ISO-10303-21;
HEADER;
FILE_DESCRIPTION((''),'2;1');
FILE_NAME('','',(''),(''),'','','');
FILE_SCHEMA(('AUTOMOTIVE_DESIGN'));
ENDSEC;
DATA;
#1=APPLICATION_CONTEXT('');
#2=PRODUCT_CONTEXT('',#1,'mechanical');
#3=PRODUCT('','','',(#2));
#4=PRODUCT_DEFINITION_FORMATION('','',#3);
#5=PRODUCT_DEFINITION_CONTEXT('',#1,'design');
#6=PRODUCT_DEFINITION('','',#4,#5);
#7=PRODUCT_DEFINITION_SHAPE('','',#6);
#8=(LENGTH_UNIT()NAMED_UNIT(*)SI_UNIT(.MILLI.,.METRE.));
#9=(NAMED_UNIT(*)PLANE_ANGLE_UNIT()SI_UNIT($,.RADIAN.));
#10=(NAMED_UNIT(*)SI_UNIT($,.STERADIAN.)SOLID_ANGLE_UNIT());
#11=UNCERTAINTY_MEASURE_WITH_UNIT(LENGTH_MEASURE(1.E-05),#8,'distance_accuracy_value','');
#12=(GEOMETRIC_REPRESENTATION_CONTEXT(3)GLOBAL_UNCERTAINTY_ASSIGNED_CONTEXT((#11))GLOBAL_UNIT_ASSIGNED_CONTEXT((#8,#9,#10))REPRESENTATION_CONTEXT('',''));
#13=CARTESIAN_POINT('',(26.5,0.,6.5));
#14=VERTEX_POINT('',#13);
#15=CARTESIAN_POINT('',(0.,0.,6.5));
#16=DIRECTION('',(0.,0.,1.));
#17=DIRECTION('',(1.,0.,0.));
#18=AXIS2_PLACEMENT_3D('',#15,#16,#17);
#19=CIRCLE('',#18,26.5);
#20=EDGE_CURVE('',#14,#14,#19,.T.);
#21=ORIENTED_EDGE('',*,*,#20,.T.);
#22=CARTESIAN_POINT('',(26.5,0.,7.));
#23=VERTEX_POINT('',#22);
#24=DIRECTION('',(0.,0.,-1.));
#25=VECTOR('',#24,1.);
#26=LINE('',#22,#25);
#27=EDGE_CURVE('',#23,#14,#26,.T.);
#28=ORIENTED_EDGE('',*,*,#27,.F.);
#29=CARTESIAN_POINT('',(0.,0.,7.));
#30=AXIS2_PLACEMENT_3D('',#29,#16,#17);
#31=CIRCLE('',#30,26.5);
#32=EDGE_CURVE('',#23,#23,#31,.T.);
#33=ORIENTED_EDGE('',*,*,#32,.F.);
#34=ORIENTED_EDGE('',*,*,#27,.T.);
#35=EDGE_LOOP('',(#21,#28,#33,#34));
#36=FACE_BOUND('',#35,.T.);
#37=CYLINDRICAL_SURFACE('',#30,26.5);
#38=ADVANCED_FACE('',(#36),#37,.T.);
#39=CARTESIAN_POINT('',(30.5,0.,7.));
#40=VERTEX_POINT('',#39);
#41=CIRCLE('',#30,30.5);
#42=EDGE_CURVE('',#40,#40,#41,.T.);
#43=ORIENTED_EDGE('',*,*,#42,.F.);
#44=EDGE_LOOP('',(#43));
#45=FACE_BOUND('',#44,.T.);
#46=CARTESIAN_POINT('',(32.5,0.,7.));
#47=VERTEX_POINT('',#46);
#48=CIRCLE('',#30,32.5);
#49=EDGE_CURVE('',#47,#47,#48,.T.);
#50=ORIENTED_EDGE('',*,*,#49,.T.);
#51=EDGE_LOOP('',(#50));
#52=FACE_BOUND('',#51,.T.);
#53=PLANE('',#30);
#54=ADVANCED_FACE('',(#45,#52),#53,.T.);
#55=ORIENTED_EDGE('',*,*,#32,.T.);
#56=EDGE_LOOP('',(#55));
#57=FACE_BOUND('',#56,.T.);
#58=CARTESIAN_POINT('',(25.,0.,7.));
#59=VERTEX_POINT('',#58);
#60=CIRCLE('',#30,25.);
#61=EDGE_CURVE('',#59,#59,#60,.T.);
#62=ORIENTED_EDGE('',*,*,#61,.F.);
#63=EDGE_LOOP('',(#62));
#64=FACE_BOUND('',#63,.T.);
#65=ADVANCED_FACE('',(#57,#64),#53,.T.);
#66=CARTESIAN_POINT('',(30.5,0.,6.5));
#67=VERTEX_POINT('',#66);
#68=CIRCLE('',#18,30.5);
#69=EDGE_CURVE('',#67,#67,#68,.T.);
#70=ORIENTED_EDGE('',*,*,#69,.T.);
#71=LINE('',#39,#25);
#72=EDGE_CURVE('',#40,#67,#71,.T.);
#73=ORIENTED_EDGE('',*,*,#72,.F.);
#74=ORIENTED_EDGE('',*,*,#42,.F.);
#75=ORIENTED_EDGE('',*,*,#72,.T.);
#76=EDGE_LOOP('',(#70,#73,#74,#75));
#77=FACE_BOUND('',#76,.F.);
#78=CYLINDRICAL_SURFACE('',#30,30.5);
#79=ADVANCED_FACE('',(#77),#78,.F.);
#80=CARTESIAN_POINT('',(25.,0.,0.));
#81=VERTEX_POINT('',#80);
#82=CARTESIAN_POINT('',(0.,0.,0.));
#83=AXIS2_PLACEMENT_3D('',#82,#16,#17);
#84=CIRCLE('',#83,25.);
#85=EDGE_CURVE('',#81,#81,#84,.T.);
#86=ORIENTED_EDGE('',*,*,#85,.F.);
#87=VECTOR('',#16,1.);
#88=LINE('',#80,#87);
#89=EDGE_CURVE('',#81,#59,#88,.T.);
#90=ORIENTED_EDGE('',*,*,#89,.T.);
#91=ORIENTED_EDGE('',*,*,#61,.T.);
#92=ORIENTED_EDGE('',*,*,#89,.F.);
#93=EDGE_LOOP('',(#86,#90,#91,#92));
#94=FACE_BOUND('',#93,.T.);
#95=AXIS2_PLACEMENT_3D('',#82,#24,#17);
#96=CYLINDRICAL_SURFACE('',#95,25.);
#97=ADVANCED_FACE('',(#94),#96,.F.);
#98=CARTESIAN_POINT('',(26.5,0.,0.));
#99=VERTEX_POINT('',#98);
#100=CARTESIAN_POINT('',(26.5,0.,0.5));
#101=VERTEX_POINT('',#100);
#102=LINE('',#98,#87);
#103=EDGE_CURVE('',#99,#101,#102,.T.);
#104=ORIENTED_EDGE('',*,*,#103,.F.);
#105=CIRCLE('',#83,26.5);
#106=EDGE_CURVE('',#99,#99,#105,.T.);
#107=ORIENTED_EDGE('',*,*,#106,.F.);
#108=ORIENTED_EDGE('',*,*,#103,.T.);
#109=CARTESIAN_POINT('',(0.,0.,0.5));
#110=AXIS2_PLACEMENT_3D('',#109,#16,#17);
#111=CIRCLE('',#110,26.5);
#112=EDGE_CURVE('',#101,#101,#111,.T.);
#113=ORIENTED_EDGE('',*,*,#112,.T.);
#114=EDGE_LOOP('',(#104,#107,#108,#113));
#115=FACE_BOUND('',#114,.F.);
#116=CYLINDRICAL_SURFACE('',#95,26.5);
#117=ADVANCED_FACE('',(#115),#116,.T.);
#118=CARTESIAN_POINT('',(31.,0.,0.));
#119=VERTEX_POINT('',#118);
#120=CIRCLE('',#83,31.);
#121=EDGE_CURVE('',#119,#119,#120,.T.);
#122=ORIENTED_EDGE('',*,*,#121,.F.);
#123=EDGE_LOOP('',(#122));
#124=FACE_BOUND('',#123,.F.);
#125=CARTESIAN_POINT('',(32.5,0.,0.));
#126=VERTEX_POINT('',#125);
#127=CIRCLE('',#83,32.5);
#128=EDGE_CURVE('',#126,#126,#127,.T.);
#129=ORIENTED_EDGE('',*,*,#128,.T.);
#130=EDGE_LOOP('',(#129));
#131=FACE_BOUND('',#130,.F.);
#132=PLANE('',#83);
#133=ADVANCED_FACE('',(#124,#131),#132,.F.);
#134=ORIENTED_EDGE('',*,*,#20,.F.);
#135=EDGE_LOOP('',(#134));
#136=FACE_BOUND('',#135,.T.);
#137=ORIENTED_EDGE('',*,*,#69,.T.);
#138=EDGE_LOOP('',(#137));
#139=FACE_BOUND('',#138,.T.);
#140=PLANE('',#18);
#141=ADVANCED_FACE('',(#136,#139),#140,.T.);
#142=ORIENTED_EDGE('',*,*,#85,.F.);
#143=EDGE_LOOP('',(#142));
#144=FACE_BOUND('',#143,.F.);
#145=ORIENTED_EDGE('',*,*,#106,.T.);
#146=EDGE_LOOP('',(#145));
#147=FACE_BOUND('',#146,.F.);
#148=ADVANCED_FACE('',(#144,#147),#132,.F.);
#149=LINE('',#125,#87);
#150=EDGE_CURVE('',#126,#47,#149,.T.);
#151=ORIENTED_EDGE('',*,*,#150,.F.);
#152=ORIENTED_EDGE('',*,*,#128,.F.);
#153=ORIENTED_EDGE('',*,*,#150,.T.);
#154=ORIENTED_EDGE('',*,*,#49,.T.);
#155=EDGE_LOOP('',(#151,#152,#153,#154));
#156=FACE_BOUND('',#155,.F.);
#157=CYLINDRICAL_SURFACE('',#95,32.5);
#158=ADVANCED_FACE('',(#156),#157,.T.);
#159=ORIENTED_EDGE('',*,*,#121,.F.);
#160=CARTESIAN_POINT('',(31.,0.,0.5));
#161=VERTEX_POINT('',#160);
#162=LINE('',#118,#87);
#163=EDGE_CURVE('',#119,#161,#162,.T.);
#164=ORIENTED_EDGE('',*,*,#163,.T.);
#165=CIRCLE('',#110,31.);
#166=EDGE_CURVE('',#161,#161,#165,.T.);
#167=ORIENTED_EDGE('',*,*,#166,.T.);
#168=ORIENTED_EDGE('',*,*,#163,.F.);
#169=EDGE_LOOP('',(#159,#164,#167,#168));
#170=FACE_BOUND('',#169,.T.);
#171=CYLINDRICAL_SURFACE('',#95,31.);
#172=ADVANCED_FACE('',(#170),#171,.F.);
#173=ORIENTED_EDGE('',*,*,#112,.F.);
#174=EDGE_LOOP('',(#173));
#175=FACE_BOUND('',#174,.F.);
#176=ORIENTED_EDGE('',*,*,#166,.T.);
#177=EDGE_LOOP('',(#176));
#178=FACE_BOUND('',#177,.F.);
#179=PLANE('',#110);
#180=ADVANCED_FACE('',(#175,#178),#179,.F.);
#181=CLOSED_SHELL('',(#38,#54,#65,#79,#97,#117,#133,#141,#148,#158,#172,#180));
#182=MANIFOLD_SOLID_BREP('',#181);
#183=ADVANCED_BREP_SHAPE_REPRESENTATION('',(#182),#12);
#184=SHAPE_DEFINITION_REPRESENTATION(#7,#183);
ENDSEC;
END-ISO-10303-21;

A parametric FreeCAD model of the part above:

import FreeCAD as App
import Part
import Sketcher

doc = App.newDocument("Part")
body = doc.addObject("PartDesign::Body", "Body")

sketch1 = body.newObject("Sketcher::SketchObject", "Sketch")
sketch1.AttachmentSupport = (doc.getObject("XY_Plane"), [""])
sketch1.MapMode = "FlatFace"
sketch1.addGeometry([
    Part.Circle(App.Vector(0, 0, 0), App.Vector(0, 0, 1), 32),
    Part.Circle(App.Vector(0, 0, 0), App.Vector(0, 0, 1), 25),
], False)
sketch1.addConstraint([
    Sketcher.Constraint("Coincident", 0, 3, -1, 1),
    Sketcher.Constraint("Coincident", 1, 3, -1, 1),
    Sketcher.Constraint("Diameter", 0, 65.0),
    Sketcher.Constraint("Diameter", 1, 50.0),
])
pad1 = body.newObject("PartDesign::Pad", "Pad")
pad1.Profile = sketch1
pad1.Length = 7

sketch2 = body.newObject("Sketcher::SketchObject", "Sketch001")
sketch2.AttachmentSupport = (doc.getObject("XY_Plane"), [""])
sketch2.MapMode = "FlatFace"
sketch2.AttachmentOffset = App.Placement(App.Vector(0, 0, 7), App.Rotation())
sketch2.addGeometry([
    Part.Circle(App.Vector(0, 0, 0), App.Vector(0, 0, 1), 30),
    Part.Circle(App.Vector(0, 0, 0), App.Vector(0, 0, 1), 26),
], False)
sketch2.addConstraint([
    Sketcher.Constraint("Coincident", 0, 3, -1, 1),
    Sketcher.Constraint("Coincident", 1, 3, -1, 1),
    Sketcher.Constraint("Diameter", 0, 61.0),
    Sketcher.Constraint("Diameter", 1, 53.0),
])
pocket1 = body.newObject("PartDesign::Pocket", "Pocket")
pocket1.Profile = sketch2
pocket1.Length = 0.5

sketch3 = body.newObject("Sketcher::SketchObject", "Sketch002")
sketch3.AttachmentSupport = (doc.getObject("XY_Plane"), [""])
sketch3.MapMode = "FlatFace"
sketch3.addGeometry([
    Part.Circle(App.Vector(0, 0, 0), App.Vector(0, 0, 1), 31),
    Part.Circle(App.Vector(0, 0, 0), App.Vector(0, 0, 1), 26),
], False)
sketch3.addConstraint([
    Sketcher.Constraint("Coincident", 0, 3, -1, 1),
    Sketcher.Constraint("Coincident", 1, 3, -1, 1),
    Sketcher.Constraint("Diameter", 0, 62.0),
    Sketcher.Constraint("Diameter", 1, 53.0),
])
pocket2 = body.newObject("PartDesign::Pocket", "Pocket001")
pocket2.Profile = sketch3
pocket2.Length = 0.5
pocket2.Reversed = True

doc.recompute()
